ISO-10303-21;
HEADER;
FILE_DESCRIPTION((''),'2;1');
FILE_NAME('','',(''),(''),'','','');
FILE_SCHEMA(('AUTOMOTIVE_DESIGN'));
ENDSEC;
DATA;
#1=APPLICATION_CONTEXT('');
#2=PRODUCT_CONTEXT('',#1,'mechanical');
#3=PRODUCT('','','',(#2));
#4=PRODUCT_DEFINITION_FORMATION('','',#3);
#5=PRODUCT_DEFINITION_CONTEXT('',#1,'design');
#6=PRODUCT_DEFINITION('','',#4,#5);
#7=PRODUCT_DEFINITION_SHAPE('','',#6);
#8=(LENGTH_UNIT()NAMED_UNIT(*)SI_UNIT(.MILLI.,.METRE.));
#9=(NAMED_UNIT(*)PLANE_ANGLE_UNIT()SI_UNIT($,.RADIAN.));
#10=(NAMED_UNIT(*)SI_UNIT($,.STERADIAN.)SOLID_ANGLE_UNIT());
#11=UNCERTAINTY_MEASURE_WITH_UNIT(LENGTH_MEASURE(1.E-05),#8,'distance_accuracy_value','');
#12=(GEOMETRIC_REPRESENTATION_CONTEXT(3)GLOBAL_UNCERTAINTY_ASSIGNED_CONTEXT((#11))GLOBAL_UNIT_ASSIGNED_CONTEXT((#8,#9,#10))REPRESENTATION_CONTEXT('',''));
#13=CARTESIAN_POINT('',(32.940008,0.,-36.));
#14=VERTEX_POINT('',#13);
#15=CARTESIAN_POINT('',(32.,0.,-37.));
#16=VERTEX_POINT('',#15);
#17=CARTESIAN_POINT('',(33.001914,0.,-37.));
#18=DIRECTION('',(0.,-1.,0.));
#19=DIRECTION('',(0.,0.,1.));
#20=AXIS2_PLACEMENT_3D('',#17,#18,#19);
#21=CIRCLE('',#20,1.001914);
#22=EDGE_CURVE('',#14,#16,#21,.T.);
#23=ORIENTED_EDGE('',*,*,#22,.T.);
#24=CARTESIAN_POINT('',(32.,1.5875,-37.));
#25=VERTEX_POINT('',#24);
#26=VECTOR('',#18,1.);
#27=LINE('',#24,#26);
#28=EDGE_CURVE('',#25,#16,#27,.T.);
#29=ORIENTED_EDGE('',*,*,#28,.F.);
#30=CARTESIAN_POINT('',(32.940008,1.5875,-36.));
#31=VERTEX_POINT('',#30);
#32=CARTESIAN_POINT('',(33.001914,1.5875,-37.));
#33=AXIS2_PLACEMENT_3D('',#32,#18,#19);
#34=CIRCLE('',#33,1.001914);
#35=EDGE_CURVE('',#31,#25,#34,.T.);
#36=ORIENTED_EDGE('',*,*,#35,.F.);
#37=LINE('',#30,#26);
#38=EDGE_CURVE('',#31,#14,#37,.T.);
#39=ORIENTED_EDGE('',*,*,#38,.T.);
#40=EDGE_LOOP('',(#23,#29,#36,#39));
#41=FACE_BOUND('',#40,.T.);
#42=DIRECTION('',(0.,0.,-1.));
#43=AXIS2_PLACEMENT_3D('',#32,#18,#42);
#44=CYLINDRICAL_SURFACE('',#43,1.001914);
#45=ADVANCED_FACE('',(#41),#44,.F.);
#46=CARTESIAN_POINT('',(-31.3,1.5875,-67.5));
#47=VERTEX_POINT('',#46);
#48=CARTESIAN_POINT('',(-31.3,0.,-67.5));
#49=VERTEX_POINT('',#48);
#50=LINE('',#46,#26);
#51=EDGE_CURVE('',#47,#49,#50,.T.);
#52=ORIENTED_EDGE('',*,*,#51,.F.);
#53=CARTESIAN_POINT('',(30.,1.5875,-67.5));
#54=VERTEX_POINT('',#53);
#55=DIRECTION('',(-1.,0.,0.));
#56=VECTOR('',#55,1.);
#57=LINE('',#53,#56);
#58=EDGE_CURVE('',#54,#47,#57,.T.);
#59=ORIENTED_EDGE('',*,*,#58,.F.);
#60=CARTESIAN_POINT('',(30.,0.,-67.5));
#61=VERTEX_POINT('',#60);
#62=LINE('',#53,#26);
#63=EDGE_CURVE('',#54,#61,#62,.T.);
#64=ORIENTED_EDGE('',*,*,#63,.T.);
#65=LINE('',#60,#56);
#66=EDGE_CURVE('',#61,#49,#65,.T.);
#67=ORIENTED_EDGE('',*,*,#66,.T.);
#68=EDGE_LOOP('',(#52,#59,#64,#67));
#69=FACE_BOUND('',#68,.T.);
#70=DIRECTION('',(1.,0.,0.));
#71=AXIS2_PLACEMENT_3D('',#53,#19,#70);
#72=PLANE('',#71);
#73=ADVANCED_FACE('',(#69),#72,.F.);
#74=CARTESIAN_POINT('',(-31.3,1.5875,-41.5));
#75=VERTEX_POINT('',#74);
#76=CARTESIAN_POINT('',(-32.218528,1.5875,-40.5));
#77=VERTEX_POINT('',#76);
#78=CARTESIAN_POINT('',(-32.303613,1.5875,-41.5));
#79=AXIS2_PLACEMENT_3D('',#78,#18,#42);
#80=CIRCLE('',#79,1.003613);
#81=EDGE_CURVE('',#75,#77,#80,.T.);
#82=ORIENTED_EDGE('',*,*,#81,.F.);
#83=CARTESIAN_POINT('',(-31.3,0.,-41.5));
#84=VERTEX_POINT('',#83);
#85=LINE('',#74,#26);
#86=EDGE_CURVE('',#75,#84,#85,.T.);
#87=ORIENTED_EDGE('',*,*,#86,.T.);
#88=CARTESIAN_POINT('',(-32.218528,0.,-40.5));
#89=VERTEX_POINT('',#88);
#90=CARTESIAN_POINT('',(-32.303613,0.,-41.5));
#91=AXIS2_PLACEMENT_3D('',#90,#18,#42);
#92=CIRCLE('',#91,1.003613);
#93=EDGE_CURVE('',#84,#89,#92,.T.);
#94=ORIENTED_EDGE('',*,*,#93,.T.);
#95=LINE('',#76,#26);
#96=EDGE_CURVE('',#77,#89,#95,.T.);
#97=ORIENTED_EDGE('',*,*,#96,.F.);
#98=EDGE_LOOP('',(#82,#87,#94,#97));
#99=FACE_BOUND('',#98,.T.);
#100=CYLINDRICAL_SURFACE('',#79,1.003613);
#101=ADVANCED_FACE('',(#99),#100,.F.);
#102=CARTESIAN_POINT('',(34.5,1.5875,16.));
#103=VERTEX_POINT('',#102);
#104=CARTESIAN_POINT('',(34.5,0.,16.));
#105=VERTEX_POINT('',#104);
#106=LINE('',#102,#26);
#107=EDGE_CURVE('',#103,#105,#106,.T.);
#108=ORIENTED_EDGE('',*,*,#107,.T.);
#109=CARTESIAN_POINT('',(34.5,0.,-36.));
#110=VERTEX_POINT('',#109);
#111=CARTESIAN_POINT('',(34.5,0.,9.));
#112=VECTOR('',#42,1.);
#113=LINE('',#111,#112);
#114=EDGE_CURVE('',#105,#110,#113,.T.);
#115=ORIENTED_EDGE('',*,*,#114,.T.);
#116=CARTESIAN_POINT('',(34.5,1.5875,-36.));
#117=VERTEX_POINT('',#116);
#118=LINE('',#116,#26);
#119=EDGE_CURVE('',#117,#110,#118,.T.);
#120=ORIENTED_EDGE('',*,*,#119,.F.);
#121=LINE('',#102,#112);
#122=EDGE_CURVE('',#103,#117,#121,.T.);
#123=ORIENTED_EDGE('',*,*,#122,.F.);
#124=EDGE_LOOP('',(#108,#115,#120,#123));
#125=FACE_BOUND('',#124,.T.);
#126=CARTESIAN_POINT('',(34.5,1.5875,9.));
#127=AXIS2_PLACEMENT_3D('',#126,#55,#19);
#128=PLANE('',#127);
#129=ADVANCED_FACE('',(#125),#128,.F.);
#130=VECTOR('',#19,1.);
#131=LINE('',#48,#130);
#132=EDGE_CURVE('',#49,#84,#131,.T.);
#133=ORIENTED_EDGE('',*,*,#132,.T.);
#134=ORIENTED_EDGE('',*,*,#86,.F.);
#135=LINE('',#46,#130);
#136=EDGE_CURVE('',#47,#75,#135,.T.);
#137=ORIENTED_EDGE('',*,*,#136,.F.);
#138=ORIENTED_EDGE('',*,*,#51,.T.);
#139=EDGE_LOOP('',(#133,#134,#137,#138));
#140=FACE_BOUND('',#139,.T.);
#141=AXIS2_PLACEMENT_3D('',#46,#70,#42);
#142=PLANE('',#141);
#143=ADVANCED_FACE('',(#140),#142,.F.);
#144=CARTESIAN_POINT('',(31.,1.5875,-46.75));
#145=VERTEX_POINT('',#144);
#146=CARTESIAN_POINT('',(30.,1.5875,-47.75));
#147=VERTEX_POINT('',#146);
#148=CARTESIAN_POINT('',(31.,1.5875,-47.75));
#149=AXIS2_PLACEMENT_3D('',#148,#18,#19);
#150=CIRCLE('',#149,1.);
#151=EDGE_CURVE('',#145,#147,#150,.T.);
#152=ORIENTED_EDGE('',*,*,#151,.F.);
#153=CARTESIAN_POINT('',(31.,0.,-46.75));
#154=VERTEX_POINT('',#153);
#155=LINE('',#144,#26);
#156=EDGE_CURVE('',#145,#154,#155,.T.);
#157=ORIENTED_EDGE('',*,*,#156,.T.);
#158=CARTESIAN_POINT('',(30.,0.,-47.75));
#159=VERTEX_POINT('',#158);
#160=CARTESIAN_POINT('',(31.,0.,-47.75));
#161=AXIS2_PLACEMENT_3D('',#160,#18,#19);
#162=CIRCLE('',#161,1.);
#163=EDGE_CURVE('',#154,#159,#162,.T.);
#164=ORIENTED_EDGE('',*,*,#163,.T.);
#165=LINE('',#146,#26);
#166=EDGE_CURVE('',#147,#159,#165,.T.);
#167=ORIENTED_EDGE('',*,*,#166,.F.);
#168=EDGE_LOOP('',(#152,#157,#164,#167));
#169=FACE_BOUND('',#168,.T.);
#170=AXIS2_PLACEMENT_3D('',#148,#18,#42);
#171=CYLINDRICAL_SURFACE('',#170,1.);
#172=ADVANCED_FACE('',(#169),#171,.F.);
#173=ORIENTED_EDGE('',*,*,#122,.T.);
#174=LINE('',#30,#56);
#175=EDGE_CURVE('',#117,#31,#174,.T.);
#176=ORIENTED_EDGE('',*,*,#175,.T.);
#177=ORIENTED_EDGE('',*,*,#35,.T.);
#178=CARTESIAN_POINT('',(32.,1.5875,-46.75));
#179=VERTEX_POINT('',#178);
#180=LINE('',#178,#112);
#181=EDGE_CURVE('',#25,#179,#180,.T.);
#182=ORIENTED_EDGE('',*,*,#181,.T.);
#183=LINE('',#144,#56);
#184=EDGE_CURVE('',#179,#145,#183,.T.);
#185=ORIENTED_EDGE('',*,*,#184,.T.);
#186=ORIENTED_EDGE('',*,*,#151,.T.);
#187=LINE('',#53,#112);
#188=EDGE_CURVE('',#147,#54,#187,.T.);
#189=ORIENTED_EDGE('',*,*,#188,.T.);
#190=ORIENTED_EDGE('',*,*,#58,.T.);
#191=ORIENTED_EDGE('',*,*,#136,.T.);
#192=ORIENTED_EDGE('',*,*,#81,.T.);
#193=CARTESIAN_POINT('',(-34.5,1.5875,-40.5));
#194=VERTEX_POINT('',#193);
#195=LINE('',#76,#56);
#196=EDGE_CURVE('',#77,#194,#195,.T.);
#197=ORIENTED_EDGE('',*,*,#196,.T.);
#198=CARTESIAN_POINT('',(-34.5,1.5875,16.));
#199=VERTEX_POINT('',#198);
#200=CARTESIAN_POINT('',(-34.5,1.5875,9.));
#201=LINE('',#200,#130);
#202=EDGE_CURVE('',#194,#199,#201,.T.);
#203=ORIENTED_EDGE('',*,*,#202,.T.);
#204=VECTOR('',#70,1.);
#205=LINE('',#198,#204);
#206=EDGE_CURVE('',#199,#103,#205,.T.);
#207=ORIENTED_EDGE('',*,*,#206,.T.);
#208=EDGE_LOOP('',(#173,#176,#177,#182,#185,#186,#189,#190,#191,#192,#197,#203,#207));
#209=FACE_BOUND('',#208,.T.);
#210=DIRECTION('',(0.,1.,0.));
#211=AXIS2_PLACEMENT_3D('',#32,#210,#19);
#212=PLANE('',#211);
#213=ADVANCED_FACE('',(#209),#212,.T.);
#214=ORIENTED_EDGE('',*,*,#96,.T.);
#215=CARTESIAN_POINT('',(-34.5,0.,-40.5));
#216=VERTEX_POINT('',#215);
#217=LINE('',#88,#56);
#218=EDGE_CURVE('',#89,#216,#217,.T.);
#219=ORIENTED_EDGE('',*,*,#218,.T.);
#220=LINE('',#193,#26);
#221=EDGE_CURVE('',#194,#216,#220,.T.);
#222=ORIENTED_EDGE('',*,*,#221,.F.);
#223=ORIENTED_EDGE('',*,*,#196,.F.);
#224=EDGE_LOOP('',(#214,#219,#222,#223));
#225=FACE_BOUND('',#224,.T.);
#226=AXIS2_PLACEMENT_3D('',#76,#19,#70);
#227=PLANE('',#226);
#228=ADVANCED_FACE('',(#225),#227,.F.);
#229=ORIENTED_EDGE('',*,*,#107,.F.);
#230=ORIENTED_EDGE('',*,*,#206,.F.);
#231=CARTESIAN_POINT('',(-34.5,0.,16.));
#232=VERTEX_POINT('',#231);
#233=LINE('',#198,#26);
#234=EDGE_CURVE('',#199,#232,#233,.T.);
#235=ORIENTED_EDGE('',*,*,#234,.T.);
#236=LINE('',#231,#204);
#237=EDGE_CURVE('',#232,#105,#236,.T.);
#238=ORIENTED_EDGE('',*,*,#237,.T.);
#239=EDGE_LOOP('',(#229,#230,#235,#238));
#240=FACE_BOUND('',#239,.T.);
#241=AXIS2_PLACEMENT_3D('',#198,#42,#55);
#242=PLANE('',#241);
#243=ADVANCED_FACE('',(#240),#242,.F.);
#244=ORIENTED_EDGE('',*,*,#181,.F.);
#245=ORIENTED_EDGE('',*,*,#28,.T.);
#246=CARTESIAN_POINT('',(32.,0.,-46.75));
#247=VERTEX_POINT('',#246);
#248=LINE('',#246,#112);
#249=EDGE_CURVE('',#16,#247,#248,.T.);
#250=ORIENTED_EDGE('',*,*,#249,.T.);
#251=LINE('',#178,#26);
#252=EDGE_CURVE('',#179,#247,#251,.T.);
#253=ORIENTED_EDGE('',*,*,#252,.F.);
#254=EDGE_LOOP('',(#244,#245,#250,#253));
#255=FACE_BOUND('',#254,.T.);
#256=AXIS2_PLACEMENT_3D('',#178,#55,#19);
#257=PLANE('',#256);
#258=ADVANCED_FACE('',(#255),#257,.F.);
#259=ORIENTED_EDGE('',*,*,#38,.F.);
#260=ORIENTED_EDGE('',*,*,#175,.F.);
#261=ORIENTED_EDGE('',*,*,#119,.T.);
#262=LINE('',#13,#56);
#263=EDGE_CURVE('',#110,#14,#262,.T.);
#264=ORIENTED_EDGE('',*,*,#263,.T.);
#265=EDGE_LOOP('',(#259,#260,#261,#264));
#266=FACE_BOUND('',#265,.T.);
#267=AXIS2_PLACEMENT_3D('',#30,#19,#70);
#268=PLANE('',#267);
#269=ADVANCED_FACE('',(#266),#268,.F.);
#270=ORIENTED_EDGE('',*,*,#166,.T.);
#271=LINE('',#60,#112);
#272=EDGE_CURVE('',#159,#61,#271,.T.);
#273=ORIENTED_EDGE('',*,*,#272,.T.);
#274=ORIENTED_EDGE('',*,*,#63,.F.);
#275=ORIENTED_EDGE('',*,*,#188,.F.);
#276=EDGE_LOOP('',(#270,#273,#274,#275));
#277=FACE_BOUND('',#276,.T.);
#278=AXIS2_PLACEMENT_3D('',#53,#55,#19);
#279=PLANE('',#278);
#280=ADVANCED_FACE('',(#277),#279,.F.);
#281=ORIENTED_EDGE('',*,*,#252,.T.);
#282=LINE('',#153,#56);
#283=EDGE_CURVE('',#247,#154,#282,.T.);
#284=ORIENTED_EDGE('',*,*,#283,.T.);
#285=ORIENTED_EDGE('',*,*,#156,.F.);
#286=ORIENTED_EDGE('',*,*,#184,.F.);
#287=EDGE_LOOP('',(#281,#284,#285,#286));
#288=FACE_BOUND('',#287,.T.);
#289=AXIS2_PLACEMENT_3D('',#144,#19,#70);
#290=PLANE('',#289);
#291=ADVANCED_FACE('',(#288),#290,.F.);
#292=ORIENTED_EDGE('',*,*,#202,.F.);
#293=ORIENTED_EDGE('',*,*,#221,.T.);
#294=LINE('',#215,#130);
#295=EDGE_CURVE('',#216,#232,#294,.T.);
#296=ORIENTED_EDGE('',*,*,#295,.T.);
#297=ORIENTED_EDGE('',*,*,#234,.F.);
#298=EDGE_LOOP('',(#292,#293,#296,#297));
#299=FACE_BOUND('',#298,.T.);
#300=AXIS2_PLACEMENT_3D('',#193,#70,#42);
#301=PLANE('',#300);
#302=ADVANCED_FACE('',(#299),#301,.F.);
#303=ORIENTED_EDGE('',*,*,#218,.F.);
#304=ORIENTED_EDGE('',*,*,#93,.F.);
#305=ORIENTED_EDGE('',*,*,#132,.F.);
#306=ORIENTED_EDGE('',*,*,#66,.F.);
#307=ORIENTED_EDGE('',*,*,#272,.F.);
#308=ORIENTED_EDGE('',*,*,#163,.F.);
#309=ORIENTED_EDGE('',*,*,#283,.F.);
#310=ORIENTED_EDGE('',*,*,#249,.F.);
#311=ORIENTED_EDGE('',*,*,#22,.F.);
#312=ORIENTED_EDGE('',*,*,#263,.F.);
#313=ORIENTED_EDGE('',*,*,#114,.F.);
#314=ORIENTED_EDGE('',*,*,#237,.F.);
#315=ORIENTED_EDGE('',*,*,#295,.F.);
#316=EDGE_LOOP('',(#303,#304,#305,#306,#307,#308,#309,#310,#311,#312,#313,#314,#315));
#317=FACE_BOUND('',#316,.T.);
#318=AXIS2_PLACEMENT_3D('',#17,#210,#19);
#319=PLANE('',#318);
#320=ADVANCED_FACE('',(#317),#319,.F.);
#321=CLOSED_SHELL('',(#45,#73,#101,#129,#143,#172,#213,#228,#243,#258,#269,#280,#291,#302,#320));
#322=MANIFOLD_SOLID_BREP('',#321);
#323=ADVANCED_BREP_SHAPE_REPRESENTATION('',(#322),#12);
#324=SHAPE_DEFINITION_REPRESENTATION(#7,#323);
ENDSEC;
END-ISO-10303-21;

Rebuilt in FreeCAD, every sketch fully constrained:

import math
import FreeCAD as App
import Part
import Sketcher

V = App.Vector
Q = App.Units.Quantity

doc = App.newDocument("Part")
params = doc.addObject("Spreadsheet::Sheet", "Params")
for row, (alias, value) in enumerate([
    ("sketch1_radius", "1 mm"),
    ("sketch1_width", "1 mm"),
    ("sketch1_width2", "69 mm"),
    ("sketch1_height", "26 mm"),
    ("sketch1_height2", "52 mm"),
    ("pad1_length", "1.5875 mm"),
], start=1):
    params.set(f"A{row}", alias)
    params.set(f"B{row}", "=" + value)
    params.setAlias(f"B{row}", alias)

body = doc.addObject("PartDesign::Body", "Body")

sketch1 = body.newObject("Sketcher::SketchObject", "Sketch")
sketch1.AttachmentSupport = (doc.getObject("XZ_Plane"), [""])
sketch1.MapMode = "FlatFace"
sketch1.addGeometry([
    Part.LineSegment(V(34.5, -36, 0), V(32.9, -36, 0)),
    Part.ArcOfCircle(Part.Circle(V(33, -37, 0), V(0, 0, 1), 1), math.radians(94), math.radians(180)),
    Part.LineSegment(V(32, -37, 0), V(32, -46.8, 0)),
    Part.LineSegment(V(32, -46.8, 0), V(31, -46.8, 0)),
    Part.ArcOfCircle(Part.Circle(V(31, -47.8, 0), V(0, 0, 1), 1), math.radians(90), math.radians(180)),
    Part.LineSegment(V(30, -47.8, 0), V(30, -67.5, 0)),
    Part.LineSegment(V(30, -67.5, 0), V(-31.3, -67.5, 0)),
    Part.LineSegment(V(-31.3, -67.5, 0), V(-31.3, -41.5, 0)),
    Part.ArcOfCircle(Part.Circle(V(-32.3, -41.5, 0), V(0, 0, 1), 1), math.radians(0), math.radians(85)),
    Part.LineSegment(V(-32.2, -40.5, 0), V(-34.5, -40.5, 0)),
    Part.LineSegment(V(-34.5, -40.5, 0), V(-34.5, 16, 0)),
    Part.LineSegment(V(-34.5, 16, 0), V(34.5, 16, 0)),
    Part.LineSegment(V(34.5, 16, 0), V(34.5, -36, 0)),
], False)
sketch1.addConstraint([
    Sketcher.Constraint("Coincident", 0, 2, 1, 1),
    Sketcher.Constraint("Tangent", 1, 2, 2, 1),
    Sketcher.Constraint("Coincident", 2, 2, 3, 1),
    Sketcher.Constraint("Tangent", 3, 2, 4, 1),
    Sketcher.Constraint("Tangent", 4, 2, 5, 1),
    Sketcher.Constraint("Coincident", 5, 2, 6, 1),
    Sketcher.Constraint("Coincident", 6, 2, 7, 1),
    Sketcher.Constraint("Tangent", 7, 2, 8, 1),
    Sketcher.Constraint("Coincident", 8, 2, 9, 1),
    Sketcher.Constraint("Coincident", 9, 2, 10, 1),
    Sketcher.Constraint("Coincident", 10, 2, 11, 1),
    Sketcher.Constraint("Coincident", 11, 2, 12, 1),
    Sketcher.Constraint("Coincident", 12, 2, 0, 1),
    Sketcher.Constraint("Horizontal", 0),
    Sketcher.Constraint("Vertical", 2),
    Sketcher.Constraint("Horizontal", 3),
    Sketcher.Constraint("Vertical", 5),
    Sketcher.Constraint("Horizontal", 6),
    Sketcher.Constraint("Vertical", 7),
    Sketcher.Constraint("Horizontal", 9),
    Sketcher.Constraint("Vertical", 10),
    Sketcher.Constraint("Horizontal", 11),
    Sketcher.Constraint("Vertical", 12),
    Sketcher.Constraint("Radius", 4, Q("1 mm")),
    Sketcher.Constraint("DistanceX", 3, 2, 3, 1, Q("1 mm")),
    Sketcher.Constraint("DistanceX", 11, 1, 11, 2, Q("69 mm")),
    Sketcher.Constraint("DistanceY", 7, 1, 7, 2, Q("26 mm")),
    Sketcher.Constraint("DistanceY", 12, 2, 12, 1, Q("52 mm")),
    Sketcher.Constraint("DistanceX", 6, 2, 6, 1, Q("61.3 mm")),
    Sketcher.Constraint("DistanceY", 10, 1, 10, 2, Q("56.5 mm")),
    Sketcher.Constraint("DistanceY", 1, 3, -1, 1, Q("37 mm")),
    Sketcher.Constraint("DistanceX", -1, 1, 4, 3, Q("31 mm")),
    Sketcher.Constraint("DistanceY", 0, 2, -1, 1, Q("36 mm")),
    Sketcher.Constraint("DistanceY", 8, 3, 8, 2, Q("1 mm")),
    Sketcher.Constraint("DistanceY", 2, 2, 2, 1, Q("9.75 mm")),
    Sketcher.Constraint("DistanceX", 9, 2, -1, 1, Q("34.5 mm")),
    Sketcher.Constraint("Radius", 1, Q("1.001914 mm")),
    Sketcher.Constraint("Radius", 8, Q("1.003613 mm")),
])
sketch1.setExpression("Constraints[23]", "Params.sketch1_radius")
sketch1.setExpression("Constraints[24]", "Params.sketch1_width")
sketch1.setExpression("Constraints[25]", "Params.sketch1_width2")
sketch1.setExpression("Constraints[26]", "Params.sketch1_height")
sketch1.setExpression("Constraints[27]", "Params.sketch1_height2")
pad1 = body.newObject("PartDesign::Pad", "Pad")
pad1.Profile = sketch1
pad1.setExpression("Length", "Params.pad1_length")
pad1.Reversed = True

doc.recompute()
